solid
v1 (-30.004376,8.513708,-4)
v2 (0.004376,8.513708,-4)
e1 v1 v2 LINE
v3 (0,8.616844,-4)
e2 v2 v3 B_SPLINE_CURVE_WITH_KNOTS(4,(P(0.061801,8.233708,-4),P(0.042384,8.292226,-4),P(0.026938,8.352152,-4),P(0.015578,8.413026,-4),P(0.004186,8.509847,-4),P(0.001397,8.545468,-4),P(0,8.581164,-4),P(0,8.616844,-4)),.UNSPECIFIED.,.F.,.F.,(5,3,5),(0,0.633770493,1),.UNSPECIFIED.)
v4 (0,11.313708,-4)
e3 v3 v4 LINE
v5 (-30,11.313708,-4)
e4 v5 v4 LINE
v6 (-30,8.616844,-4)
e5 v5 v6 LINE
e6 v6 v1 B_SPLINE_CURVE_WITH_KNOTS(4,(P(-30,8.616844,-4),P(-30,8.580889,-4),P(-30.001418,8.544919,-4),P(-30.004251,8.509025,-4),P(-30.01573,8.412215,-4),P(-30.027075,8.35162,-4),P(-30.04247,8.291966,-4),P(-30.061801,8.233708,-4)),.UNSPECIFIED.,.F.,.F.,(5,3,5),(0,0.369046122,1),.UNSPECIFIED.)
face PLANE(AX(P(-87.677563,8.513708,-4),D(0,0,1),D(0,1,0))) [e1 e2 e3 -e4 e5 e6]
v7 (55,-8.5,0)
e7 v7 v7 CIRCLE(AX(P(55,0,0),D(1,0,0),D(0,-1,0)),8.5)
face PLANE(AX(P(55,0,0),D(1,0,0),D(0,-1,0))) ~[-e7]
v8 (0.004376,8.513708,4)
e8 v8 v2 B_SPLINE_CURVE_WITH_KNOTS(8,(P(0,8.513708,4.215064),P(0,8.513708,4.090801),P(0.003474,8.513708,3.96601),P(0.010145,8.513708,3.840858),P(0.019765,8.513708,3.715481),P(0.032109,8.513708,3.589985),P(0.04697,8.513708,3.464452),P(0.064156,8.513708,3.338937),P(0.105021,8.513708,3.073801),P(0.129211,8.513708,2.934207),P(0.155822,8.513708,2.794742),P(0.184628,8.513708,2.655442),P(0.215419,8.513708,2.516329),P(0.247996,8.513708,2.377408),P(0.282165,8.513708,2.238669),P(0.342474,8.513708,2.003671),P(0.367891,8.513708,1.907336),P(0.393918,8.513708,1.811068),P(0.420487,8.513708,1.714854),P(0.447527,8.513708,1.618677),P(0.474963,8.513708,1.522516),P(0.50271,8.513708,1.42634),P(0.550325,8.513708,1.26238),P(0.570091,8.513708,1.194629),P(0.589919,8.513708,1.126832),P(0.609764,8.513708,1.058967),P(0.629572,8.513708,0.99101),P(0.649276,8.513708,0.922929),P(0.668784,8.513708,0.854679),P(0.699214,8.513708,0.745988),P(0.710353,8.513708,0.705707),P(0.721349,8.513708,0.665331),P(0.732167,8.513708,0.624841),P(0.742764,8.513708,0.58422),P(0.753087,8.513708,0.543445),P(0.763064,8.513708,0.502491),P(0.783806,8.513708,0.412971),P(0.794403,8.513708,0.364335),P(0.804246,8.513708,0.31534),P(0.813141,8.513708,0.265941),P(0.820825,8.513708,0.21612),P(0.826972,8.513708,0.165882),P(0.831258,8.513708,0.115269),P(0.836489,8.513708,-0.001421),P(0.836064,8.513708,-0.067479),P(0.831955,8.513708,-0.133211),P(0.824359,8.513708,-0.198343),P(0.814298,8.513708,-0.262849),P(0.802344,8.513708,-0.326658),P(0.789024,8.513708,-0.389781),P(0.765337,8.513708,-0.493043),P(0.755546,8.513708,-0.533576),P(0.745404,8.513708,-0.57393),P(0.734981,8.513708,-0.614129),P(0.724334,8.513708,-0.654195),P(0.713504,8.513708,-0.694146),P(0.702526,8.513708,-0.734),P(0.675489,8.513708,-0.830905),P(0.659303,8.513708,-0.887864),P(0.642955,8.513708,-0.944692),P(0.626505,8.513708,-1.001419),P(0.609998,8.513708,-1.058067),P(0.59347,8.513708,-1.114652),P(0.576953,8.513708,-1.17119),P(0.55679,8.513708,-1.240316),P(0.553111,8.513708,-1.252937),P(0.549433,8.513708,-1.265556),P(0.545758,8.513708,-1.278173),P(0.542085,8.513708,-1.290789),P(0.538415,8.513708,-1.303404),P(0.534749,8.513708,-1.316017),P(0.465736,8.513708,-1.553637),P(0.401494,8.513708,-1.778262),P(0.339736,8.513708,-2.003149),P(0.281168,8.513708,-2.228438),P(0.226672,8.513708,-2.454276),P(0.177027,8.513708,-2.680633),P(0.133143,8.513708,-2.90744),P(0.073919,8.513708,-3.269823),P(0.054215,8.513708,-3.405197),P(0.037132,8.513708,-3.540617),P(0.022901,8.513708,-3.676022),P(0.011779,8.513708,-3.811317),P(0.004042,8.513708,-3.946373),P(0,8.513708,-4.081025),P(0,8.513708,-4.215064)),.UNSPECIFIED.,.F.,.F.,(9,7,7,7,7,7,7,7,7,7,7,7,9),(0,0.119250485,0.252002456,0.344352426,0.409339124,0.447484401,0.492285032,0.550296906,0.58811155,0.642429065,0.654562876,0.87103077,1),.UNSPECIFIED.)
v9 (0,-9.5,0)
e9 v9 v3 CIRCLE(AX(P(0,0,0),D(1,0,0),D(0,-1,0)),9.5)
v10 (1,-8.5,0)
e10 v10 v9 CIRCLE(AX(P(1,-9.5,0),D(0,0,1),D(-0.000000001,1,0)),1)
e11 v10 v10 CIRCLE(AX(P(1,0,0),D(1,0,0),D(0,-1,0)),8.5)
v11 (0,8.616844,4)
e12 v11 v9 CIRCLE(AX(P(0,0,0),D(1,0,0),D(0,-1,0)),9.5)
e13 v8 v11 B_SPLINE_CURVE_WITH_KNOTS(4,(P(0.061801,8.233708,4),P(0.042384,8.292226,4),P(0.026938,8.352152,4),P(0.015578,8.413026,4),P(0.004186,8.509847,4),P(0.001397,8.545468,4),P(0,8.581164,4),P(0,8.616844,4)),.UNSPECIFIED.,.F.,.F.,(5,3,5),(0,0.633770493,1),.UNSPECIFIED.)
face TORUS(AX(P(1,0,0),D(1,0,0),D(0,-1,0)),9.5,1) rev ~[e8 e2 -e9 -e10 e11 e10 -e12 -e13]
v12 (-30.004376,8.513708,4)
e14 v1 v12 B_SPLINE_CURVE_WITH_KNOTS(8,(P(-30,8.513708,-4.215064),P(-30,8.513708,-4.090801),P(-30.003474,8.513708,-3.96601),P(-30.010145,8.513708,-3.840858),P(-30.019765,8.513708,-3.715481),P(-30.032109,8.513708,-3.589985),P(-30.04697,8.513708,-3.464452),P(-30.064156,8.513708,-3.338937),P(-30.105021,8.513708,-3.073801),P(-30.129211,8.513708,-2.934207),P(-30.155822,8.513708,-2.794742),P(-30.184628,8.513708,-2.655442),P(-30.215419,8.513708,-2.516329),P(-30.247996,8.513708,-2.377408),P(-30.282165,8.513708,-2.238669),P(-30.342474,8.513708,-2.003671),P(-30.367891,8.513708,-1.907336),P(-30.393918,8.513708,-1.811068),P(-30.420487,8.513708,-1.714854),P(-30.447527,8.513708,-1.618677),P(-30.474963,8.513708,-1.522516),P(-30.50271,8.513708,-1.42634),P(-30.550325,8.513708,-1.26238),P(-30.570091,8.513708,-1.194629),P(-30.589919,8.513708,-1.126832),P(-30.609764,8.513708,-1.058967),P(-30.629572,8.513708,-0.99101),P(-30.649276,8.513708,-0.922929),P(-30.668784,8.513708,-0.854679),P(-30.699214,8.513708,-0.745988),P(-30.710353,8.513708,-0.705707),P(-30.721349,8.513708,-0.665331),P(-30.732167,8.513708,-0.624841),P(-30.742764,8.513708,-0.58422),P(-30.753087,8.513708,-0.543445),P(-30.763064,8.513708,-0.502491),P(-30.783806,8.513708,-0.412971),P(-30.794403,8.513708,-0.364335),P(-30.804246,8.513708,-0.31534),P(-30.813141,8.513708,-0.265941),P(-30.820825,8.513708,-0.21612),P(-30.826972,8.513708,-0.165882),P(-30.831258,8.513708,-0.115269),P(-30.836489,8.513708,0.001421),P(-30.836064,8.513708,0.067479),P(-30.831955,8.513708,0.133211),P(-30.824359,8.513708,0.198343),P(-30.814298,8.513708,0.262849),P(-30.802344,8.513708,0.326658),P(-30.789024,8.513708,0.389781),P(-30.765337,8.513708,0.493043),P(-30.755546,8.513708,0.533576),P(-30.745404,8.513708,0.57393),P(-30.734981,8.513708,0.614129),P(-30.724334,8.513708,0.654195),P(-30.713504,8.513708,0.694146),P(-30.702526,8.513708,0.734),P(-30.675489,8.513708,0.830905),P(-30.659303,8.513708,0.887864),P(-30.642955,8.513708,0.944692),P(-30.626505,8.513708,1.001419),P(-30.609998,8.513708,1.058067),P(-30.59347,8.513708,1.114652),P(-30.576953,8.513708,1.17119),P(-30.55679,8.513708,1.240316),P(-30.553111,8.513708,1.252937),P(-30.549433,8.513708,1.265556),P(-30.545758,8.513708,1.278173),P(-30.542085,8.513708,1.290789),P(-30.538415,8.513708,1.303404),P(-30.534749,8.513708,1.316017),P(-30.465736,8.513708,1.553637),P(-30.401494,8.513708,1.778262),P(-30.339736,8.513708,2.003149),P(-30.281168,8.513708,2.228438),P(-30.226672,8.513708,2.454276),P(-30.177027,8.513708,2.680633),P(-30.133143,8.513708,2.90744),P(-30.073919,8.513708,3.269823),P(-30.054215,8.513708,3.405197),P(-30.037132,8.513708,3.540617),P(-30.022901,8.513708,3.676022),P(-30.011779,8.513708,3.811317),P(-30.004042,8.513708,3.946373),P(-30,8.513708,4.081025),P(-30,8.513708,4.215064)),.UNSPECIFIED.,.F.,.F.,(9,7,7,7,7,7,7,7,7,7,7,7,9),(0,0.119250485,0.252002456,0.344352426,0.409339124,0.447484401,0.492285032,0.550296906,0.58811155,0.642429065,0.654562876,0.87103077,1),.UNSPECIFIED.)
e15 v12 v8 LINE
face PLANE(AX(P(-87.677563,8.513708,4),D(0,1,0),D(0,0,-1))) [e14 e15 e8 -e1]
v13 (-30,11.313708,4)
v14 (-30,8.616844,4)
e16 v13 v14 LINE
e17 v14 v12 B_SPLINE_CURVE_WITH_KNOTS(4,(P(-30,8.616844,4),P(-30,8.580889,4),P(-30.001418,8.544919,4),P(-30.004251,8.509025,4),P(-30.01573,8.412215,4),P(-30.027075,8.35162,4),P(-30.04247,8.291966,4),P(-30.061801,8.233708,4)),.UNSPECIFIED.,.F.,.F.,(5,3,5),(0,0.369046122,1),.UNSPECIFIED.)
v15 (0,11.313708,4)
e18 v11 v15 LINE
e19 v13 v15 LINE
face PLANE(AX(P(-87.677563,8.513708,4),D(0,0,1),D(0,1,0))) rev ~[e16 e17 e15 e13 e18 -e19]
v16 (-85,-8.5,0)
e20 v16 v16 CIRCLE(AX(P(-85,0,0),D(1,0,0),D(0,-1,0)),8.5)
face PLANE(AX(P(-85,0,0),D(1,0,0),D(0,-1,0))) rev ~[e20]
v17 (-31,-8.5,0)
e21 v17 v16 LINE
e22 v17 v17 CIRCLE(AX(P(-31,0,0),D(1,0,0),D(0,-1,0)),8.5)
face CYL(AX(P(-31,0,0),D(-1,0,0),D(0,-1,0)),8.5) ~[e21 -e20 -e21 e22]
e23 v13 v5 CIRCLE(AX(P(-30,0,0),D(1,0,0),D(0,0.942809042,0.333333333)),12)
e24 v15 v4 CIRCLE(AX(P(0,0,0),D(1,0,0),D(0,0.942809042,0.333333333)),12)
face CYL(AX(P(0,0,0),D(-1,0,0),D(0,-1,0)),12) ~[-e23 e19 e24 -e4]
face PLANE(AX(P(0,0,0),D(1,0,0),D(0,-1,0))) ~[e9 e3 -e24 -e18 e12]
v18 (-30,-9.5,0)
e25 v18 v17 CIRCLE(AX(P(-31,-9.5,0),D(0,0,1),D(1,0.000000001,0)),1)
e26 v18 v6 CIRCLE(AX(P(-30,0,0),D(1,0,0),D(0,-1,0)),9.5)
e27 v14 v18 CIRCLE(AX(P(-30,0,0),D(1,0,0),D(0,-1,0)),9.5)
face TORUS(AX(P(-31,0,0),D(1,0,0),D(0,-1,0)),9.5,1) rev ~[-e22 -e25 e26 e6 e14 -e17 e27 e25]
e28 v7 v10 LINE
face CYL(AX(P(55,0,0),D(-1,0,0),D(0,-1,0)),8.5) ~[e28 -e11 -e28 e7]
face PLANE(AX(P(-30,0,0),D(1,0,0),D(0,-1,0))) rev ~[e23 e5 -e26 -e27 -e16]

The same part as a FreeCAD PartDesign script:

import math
import FreeCAD as App
import Part
import Sketcher

V = App.Vector
Q = App.Units.Quantity

doc = App.newDocument("Part")
params = doc.addObject("Spreadsheet::Sheet", "Params")
for row, (alias, value) in enumerate([
    ("sketch1_radius", "1 mm"),
    ("sketch1_width", "54 mm"),
    ("sketch1_width2", "30 mm"),
    ("sketch1_height", "8.5 mm"),
    ("sketch1_height2", "2.5 mm"),
    ("revolution_angle", "360 deg"),
    ("sketch2_radius", "12 mm"),
    ("sketch2_height", "8 mm"),
    ("sketch2_width", "2.8 mm"),
], start=1):
    params.set(f"A{row}", alias)
    params.set(f"B{row}", "=" + value)
    params.setAlias(f"B{row}", alias)

body = doc.addObject("PartDesign::Body", "Body")

sketch1 = body.newObject("Sketcher::SketchObject", "Sketch")
sketch1.AttachmentSupport = (doc.getObject("XY_Plane"), [""])
sketch1.MapMode = "FlatFace"
sketch1.addGeometry([
    Part.LineSegment(V(55, 0, 0), V(55, 8.5, 0)),
    Part.LineSegment(V(55, 8.5, 0), V(1, 8.5, 0)),
    Part.ArcOfCircle(Part.Circle(V(1, 9.5, 0), V(0, 0, 1), 1), math.radians(-180), math.radians(-90)),
    Part.LineSegment(V(0, 9.5, 0), V(0, 12, 0)),
    Part.LineSegment(V(0, 12, 0), V(-30, 12, 0)),
    Part.LineSegment(V(-30, 12, 0), V(-30, 9.5, 0)),
    Part.ArcOfCircle(Part.Circle(V(-31, 9.5, 0), V(0, 0, 1), 1), math.radians(-90), math.radians(0)),
    Part.LineSegment(V(-31, 8.5, 0), V(-85, 8.5, 0)),
    Part.LineSegment(V(-85, 8.5, 0), V(-85, 0, 0)),
    Part.LineSegment(V(-85, 0, 0), V(55, 0, 0)),
], False)
sketch1.addConstraint([
    Sketcher.Constraint("Coincident", 0, 2, 1, 1),
    Sketcher.Constraint("Tangent", 1, 2, 2, 2),
    Sketcher.Constraint("Tangent", 2, 1, 3, 1),
    Sketcher.Constraint("Coincident", 3, 2, 4, 1),
    Sketcher.Constraint("Coincident", 4, 2, 5, 1),
    Sketcher.Constraint("Tangent", 5, 2, 6, 2),
    Sketcher.Constraint("Tangent", 6, 1, 7, 1),
    Sketcher.Constraint("Coincident", 7, 2, 8, 1),
    Sketcher.Constraint("Coincident", 8, 2, 9, 1),
    Sketcher.Constraint("Coincident", 9, 2, 0, 1),
    Sketcher.Constraint("Vertical", 0),
    Sketcher.Constraint("Horizontal", 1),
    Sketcher.Constraint("Vertical", 3),
    Sketcher.Constraint("Horizontal", 4),
    Sketcher.Constraint("Vertical", 5),
    Sketcher.Constraint("Horizontal", 7),
    Sketcher.Constraint("Vertical", 8),
    Sketcher.Constraint("Horizontal", 9),
    Sketcher.Constraint("Equal", 2, 6),
    Sketcher.Constraint("PointOnObject", 2, 1, -2),
    Sketcher.Constraint("PointOnObject", 8, 2, -1),
    Sketcher.Constraint("Horizontal", 2, 3, 6, 3),
    Sketcher.Constraint("Equal", 1, 7),
    Sketcher.Constraint("Radius", 2, Q("1 mm")),
    Sketcher.Constraint("DistanceX", 1, 2, 1, 1, Q("54 mm")),
    Sketcher.Constraint("DistanceX", 4, 2, 4, 1, Q("30 mm")),
    Sketcher.Constraint("DistanceY", 0, 1, 0, 2, Q("8.5 mm")),
    Sketcher.Constraint("DistanceY", 3, 1, 3, 2, Q("2.5 mm")),
])
sketch1.setExpression("Constraints[23]", "Params.sketch1_radius")
sketch1.setExpression("Constraints[24]", "Params.sketch1_width")
sketch1.setExpression("Constraints[25]", "Params.sketch1_width2")
sketch1.setExpression("Constraints[26]", "Params.sketch1_height")
sketch1.setExpression("Constraints[27]", "Params.sketch1_height2")
revolution = body.newObject("PartDesign::Revolution", "Revolution")
revolution.Profile = sketch1
revolution.ReferenceAxis = (sketch1, ["H_Axis"])
revolution.setExpression("Angle", "Params.revolution_angle")

sketch2 = body.newObject("Sketcher::SketchObject", "Sketch001")
sketch2.AttachmentSupport = (doc.getObject("YZ_Plane"), [""])
sketch2.MapMode = "FlatFace"
sketch2.addGeometry([
    Part.LineSegment(V(8.5, -4, 0), V(11.3, -4, 0)),
    Part.ArcOfCircle(Part.Circle(V(0, 0, 0), V(0, 0, 1), 12), math.radians(-19.47), math.radians(0)),
    Part.ArcOfCircle(Part.Circle(V(0, 0, 0), V(0, 0, 1), 12), math.radians(0), math.radians(19.47)),
    Part.LineSegment(V(11.3, 4, 0), V(8.5, 4, 0)),
    Part.LineSegment(V(8.5, 4, 0), V(8.5, -4, 0)),
], False)
sketch2.addConstraint([
    Sketcher.Constraint("Coincident", 0, 2, 1, 1),
    Sketcher.Constraint("Tangent", 1, 2, 2, 1),
    Sketcher.Constraint("Coincident", 2, 2, 3, 1),
    Sketcher.Constraint("Coincident", 3, 2, 4, 1),
    Sketcher.Constraint("Coincident", 4, 2, 0, 1),
    Sketcher.Constraint("Horizontal", 0),
    Sketcher.Constraint("Horizontal", 3),
    Sketcher.Constraint("Vertical", 4),
    Sketcher.Constraint("Coincident", 1, 3, -1, 1),
    Sketcher.Constraint("Equal", 1, 2),
    Sketcher.Constraint("PointOnObject", 1, 2, -1),
    Sketcher.Constraint("Vertical", 0, 2, 2, 2),
    Sketcher.Constraint("Radius", 1, Q("12 mm")),
    Sketcher.Constraint("DistanceY", 4, 2, 4, 1, Q("8 mm")),
    Sketcher.Constraint("DistanceX", 0, 1, 0, 2, Q("2.8 mm")),
])
sketch2.setExpression("Constraints[12]", "Params.sketch2_radius")
sketch2.setExpression("Constraints[13]", "Params.sketch2_height")
sketch2.setExpression("Constraints[14]", "Params.sketch2_width")
pocket1 = body.newObject("PartDesign::Pocket", "Pocket")
pocket1.Profile = sketch2
pocket1.Type = "ThroughAll"
pocket1.Midplane = True

doc.recompute()
